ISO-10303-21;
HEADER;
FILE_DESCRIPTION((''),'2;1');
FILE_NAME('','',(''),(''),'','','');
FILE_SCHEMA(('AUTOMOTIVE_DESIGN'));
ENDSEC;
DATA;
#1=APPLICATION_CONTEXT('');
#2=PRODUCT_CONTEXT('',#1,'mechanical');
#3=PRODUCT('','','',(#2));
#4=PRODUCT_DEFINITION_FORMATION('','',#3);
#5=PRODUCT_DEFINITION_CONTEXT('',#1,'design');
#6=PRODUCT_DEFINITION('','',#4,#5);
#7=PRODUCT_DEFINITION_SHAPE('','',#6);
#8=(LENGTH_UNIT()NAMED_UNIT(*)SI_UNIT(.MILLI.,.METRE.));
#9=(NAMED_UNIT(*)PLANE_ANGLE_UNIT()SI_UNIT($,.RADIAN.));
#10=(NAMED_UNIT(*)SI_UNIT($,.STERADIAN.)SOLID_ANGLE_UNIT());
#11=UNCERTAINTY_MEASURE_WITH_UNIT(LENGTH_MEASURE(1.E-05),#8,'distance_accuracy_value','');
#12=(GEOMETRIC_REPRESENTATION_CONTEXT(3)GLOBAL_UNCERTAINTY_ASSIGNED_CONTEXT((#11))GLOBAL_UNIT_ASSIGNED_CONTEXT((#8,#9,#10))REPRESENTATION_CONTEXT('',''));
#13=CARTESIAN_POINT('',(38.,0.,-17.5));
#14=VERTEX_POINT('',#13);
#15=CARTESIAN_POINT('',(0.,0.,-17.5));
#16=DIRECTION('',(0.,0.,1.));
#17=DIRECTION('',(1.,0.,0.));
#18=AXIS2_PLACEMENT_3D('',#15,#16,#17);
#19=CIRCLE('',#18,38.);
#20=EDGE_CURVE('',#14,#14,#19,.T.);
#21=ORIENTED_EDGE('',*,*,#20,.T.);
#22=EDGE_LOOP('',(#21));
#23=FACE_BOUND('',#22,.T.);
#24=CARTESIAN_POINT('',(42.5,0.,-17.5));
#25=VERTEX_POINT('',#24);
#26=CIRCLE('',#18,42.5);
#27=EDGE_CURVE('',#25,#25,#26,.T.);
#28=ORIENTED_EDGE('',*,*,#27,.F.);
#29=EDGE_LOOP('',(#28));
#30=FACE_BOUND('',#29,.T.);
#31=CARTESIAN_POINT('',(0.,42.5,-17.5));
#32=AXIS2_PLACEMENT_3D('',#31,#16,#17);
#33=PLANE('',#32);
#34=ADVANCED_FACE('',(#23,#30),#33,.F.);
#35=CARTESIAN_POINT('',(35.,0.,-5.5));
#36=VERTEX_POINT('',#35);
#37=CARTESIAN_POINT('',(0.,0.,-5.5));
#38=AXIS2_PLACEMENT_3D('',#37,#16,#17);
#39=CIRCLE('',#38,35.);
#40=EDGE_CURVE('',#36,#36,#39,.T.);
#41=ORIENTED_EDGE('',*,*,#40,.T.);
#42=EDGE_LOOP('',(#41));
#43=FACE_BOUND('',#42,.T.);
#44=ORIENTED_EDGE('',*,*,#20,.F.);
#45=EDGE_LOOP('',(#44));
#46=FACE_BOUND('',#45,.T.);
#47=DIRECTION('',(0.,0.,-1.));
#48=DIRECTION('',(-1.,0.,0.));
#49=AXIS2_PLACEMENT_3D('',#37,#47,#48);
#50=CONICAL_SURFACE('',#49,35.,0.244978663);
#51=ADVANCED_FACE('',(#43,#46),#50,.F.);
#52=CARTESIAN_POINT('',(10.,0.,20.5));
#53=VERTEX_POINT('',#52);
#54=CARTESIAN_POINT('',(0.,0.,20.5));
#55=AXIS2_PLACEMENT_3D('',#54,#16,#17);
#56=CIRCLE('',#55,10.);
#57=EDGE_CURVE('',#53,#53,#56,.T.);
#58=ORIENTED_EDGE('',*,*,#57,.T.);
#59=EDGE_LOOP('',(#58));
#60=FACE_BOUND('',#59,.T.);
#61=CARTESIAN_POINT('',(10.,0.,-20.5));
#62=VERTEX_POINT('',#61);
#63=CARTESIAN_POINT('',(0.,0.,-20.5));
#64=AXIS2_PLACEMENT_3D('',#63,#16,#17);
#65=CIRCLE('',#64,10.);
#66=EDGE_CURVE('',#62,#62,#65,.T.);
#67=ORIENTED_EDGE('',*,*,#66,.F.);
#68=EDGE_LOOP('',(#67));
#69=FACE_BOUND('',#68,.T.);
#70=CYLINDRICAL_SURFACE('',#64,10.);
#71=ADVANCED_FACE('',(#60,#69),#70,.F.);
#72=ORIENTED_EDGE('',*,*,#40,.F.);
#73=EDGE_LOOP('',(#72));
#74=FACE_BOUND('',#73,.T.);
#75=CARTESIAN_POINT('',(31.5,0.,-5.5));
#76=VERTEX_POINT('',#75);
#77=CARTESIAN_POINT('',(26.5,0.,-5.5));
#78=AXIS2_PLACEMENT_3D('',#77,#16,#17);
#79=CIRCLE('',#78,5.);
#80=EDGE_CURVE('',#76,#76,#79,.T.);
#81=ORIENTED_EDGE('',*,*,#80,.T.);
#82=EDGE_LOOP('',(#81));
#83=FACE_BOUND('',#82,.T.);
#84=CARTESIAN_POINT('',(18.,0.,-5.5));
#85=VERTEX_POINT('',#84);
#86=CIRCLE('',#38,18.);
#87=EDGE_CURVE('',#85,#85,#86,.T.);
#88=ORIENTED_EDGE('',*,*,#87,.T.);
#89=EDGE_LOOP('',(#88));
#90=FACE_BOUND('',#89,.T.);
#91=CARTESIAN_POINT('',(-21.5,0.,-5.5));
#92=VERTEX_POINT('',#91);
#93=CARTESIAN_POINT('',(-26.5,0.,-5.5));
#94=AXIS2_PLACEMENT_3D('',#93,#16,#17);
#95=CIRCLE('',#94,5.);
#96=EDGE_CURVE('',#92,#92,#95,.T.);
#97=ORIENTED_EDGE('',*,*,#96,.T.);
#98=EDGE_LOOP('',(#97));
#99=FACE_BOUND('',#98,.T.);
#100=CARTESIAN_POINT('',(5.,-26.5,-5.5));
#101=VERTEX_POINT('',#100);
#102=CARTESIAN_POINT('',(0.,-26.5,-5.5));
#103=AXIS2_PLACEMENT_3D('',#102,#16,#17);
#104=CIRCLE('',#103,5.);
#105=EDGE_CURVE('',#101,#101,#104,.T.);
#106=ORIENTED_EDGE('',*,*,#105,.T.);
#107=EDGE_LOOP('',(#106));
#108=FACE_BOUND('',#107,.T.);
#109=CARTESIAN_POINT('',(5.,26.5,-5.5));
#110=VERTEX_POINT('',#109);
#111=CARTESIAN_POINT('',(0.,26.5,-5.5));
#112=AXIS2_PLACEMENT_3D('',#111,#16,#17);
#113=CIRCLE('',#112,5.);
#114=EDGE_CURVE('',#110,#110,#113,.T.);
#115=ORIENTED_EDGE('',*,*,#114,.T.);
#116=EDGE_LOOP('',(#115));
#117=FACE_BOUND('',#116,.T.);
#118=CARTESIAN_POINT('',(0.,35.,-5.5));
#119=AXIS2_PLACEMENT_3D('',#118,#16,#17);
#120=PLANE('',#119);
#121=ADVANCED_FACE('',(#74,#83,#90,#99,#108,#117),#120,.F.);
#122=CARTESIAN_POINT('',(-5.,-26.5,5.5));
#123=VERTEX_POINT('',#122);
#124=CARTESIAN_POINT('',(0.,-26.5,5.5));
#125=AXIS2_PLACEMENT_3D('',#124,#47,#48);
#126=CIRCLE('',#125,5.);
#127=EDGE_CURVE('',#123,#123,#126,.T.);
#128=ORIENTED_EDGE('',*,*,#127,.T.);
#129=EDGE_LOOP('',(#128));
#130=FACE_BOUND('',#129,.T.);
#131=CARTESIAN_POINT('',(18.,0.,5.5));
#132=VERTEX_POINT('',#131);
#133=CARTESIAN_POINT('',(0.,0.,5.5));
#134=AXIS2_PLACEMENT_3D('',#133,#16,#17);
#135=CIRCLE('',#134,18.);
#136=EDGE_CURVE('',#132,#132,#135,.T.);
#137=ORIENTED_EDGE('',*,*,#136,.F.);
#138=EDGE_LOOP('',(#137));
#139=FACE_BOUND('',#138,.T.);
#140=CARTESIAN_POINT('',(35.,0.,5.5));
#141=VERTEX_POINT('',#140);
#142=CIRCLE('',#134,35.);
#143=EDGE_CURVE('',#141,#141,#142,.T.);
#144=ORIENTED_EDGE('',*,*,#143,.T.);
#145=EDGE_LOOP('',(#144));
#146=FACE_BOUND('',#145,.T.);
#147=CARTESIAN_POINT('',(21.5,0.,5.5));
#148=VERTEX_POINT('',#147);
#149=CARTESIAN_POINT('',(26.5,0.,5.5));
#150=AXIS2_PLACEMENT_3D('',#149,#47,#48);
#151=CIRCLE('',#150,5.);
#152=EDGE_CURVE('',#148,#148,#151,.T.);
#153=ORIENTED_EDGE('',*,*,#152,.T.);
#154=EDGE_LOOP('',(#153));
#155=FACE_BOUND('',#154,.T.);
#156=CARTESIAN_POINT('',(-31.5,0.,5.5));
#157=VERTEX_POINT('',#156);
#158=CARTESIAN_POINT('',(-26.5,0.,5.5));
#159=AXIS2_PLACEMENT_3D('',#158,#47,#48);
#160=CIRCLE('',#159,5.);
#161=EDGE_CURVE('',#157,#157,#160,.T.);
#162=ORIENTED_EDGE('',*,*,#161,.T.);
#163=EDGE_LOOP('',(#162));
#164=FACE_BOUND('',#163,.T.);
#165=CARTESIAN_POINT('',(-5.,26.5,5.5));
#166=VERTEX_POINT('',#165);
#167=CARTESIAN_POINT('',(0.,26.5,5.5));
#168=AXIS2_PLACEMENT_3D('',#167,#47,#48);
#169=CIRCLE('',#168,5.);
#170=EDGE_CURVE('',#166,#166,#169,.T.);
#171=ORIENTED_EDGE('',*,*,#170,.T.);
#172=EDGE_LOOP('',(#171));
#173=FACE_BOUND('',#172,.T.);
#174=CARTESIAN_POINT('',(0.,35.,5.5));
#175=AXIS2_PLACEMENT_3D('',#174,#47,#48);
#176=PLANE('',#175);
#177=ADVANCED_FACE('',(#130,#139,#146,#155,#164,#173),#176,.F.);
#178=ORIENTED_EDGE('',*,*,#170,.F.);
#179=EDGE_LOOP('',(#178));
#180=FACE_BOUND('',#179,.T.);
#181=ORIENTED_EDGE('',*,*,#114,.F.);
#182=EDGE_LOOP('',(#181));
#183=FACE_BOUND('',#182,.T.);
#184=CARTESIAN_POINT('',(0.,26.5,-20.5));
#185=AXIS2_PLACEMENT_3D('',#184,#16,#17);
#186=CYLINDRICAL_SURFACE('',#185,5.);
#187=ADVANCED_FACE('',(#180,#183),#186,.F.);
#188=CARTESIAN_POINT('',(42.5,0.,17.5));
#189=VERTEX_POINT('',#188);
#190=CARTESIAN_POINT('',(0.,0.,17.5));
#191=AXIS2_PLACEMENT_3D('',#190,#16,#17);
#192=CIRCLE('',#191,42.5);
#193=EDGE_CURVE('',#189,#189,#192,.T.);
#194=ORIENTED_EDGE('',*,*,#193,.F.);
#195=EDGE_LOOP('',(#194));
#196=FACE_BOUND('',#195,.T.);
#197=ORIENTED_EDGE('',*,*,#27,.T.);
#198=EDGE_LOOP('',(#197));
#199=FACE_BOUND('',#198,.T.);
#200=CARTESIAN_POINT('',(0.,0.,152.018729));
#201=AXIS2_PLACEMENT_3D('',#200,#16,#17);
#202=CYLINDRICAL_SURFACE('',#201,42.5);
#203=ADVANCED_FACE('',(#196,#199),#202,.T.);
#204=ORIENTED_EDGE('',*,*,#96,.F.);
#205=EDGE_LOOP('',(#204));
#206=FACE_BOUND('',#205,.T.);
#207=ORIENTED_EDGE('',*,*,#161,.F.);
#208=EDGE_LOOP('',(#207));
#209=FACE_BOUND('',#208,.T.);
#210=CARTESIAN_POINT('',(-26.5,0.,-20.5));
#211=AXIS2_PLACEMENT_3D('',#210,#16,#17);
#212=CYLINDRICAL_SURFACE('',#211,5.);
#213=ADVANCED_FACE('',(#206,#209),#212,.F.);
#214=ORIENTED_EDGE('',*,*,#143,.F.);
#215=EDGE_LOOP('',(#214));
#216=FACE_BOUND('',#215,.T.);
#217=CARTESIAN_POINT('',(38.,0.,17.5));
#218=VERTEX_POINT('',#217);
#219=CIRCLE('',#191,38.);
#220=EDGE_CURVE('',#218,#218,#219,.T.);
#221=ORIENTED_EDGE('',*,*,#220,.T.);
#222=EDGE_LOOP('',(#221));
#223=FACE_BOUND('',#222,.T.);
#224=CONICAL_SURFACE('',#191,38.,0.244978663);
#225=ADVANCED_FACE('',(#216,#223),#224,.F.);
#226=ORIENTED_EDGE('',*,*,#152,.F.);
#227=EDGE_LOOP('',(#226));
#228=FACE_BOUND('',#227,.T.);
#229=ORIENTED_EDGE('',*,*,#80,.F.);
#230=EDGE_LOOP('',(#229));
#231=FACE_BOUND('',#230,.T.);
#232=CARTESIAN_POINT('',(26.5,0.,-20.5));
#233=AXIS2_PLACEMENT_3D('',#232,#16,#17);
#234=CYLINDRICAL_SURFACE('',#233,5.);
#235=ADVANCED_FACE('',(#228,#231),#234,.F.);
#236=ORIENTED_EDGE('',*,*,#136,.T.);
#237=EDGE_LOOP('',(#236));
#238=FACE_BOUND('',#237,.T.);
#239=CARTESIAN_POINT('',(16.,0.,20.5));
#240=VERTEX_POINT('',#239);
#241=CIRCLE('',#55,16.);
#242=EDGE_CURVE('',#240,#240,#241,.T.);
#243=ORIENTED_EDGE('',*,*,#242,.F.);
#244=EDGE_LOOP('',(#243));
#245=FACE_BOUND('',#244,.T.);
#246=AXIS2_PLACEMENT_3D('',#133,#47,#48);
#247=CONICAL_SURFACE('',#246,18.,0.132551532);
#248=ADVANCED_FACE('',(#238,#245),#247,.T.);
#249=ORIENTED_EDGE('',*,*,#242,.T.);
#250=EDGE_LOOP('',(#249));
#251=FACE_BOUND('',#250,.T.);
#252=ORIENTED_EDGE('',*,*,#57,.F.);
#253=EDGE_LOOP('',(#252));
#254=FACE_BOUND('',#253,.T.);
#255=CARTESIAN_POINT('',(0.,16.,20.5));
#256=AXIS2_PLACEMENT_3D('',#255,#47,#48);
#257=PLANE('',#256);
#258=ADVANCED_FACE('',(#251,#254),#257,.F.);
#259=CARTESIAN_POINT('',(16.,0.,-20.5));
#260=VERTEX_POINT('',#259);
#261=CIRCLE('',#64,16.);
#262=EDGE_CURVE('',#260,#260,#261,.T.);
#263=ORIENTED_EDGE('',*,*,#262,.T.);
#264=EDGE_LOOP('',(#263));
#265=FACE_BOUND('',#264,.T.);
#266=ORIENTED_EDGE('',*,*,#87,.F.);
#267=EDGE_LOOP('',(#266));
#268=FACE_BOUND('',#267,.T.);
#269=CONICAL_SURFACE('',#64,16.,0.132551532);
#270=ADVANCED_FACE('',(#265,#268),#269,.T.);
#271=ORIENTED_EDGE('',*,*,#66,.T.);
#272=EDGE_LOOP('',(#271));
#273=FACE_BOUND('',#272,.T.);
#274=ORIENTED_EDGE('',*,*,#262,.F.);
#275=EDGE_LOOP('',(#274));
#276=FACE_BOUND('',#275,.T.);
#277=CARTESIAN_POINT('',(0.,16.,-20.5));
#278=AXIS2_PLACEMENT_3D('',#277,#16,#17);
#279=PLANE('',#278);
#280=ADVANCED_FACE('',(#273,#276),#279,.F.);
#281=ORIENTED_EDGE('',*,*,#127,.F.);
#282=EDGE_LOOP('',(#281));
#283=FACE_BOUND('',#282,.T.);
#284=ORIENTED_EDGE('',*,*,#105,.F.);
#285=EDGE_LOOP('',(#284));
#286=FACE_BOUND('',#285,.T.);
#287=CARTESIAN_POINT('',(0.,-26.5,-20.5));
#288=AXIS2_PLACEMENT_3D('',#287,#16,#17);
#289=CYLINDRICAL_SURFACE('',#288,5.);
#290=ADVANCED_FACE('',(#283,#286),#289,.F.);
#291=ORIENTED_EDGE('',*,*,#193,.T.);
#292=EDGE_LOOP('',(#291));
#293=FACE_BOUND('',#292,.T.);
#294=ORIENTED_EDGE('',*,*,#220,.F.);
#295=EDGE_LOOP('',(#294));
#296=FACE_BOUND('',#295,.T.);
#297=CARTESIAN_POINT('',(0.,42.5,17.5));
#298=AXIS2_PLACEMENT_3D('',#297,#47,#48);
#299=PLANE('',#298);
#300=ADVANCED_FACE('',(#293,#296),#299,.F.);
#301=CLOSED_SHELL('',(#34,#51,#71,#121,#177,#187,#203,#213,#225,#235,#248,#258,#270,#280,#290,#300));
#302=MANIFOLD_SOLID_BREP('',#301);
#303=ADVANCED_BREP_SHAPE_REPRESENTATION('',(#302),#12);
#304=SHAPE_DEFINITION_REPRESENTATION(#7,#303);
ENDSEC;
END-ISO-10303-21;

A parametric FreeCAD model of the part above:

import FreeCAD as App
import Part
import Sketcher


def add_polygon(sketch, points):
    """Adds a closed chain of lines whose ends are joined by coincident constraints."""
    first, n = sketch.GeometryCount, len(points)
    for a, b in zip(points, points[1:] + points[:1]):
        sketch.addGeometry(Part.LineSegment(App.Vector(*a, 0), App.Vector(*b, 0)), False)
    for i in range(n):
        sketch.addConstraint(Sketcher.Constraint("Coincident", first + i, 2, first + (i + 1) % n, 1))

doc = App.newDocument("Part")
body = doc.addObject("PartDesign::Body", "Body")

# Sketch on YZ plane
sketch1 = doc.addObject("Sketcher::SketchObject", "Sketch")
body.addObject(sketch1)
sketch1.AttachmentSupport = (doc.YZ_Plane, [""])
sketch1.MapMode = "FlatFace"
add_polygon(sketch1, [(42.5, -17.5), (42.5, 17.5), (38, 17.5), (35, 5.5), (18, 5.5), (16, 20.5), (0, 20.5), (0, -20.5), (16, -20.5), (18, -5.5), (35, -5.5), (38, -17.5)])  # lines 0-11
sketch1.addConstraint(Sketcher.Constraint("Vertical", 0))
sketch1.addConstraint(Sketcher.Constraint("Horizontal", 1))
sketch1.addConstraint(Sketcher.Constraint("Horizontal", 3))
sketch1.addConstraint(Sketcher.Constraint("Horizontal", 5))
sketch1.addConstraint(Sketcher.Constraint("Vertical", 6))
sketch1.addConstraint(Sketcher.Constraint("Horizontal", 7))
sketch1.addConstraint(Sketcher.Constraint("Horizontal", 9))
sketch1.addConstraint(Sketcher.Constraint("Horizontal", 11))
sketch1.addConstraint(Sketcher.Constraint("Symmetric", 5, 2, 6, 2, -1, 1))
sketch1.addConstraint(Sketcher.Constraint("Symmetric", 3, 2, 8, 2, -1))
sketch1.addConstraint(Sketcher.Constraint("Symmetric", 1, 2, 10, 2, -1))
sketch1.addConstraint(Sketcher.Constraint("Vertical", 4, 2, 7, 2))
sketch1.addConstraint(Sketcher.Constraint("Vertical", 2, 2, 9, 2))
sketch1.addConstraint(Sketcher.Constraint("DistanceX", 3, 2, 3, 1, 17.0))
sketch1.addConstraint(Sketcher.Constraint("DistanceX", 5, 2, 5, 1, 16.0))
sketch1.addConstraint(Sketcher.Constraint("DistanceY", 0, 1, 0, 2, 35.0))
sketch1.addConstraint(Sketcher.Constraint("DistanceY", 6, 2, 6, 1, 41.0))
sketch1.addConstraint(Sketcher.Constraint("DistanceX", 1, 2, 1, 1, 4.5))
sketch1.addConstraint(Sketcher.Constraint("DistanceX", -1, 1, 1, 2, 38.0))
sketch1.addConstraint(Sketcher.Constraint("DistanceX", -1, 1, 2, 2, 35.0))
sketch1.addConstraint(Sketcher.Constraint("DistanceY", 2, 2, 1, 2, 12.0))
revolution = doc.addObject("PartDesign::Revolution", "Revolution")
body.addObject(revolution)
revolution.Profile = sketch1
revolution.ReferenceAxis = (sketch1, ["V_Axis"])
revolution.Angle = 360

# Sketch on XY plane
sketch2 = doc.addObject("Sketcher::SketchObject", "Sketch001")
body.addObject(sketch2)
sketch2.AttachmentSupport = (doc.XY_Plane, [""])
sketch2.MapMode = "FlatFace"
sketch2.AttachmentOffset = App.Placement(App.Vector(0, 0, 20.5), App.Rotation())
sketch2.addGeometry(Part.Circle(App.Vector(0, 0, 0), App.Vector(0, 0, 1), 10), False)
sketch2.addGeometry(Part.Circle(App.Vector(0, 26, 0), App.Vector(0, 0, 1), 5), False)
sketch2.addGeometry(Part.Circle(App.Vector(26, 0, 0), App.Vector(0, 0, 1), 5), False)
sketch2.addGeometry(Part.Circle(App.Vector(0, -26, 0), App.Vector(0, 0, 1), 5), False)
sketch2.addGeometry(Part.Circle(App.Vector(-26, 0, 0), App.Vector(0, 0, 1), 5), False)
sketch2.addConstraint(Sketcher.Constraint("Coincident", 0, 3, -1, 1))
sketch2.addConstraint(Sketcher.Constraint("Equal", 1, 2))
sketch2.addConstraint(Sketcher.Constraint("Equal", 2, 3))
sketch2.addConstraint(Sketcher.Constraint("Equal", 3, 4))
sketch2.addConstraint(Sketcher.Constraint("Symmetric", 1, 3, 3, 3, -1, 1))
sketch2.addConstraint(Sketcher.Constraint("Symmetric", 2, 3, 4, 3, -1, 1))
sketch2.addConstraint(Sketcher.Constraint("PointOnObject", 1, 3, -2))
sketch2.addConstraint(Sketcher.Constraint("PointOnObject", 2, 3, -1))
sketch2.addConstraint(Sketcher.Constraint("Diameter", 0, 20.0))
sketch2.addConstraint(Sketcher.Constraint("Diameter", 1, 10.0))
sketch2.addConstraint(Sketcher.Constraint("DistanceY", 3, 3, 1, 3, 53.0))
sketch2.addConstraint(Sketcher.Constraint("DistanceX", 4, 3, 2, 3, 53.0))
pocket1 = doc.addObject("PartDesign::Pocket", "Pocket")
body.addObject(pocket1)
pocket1.Profile = sketch2
pocket1.Type = "ThroughAll"

doc.recompute()
